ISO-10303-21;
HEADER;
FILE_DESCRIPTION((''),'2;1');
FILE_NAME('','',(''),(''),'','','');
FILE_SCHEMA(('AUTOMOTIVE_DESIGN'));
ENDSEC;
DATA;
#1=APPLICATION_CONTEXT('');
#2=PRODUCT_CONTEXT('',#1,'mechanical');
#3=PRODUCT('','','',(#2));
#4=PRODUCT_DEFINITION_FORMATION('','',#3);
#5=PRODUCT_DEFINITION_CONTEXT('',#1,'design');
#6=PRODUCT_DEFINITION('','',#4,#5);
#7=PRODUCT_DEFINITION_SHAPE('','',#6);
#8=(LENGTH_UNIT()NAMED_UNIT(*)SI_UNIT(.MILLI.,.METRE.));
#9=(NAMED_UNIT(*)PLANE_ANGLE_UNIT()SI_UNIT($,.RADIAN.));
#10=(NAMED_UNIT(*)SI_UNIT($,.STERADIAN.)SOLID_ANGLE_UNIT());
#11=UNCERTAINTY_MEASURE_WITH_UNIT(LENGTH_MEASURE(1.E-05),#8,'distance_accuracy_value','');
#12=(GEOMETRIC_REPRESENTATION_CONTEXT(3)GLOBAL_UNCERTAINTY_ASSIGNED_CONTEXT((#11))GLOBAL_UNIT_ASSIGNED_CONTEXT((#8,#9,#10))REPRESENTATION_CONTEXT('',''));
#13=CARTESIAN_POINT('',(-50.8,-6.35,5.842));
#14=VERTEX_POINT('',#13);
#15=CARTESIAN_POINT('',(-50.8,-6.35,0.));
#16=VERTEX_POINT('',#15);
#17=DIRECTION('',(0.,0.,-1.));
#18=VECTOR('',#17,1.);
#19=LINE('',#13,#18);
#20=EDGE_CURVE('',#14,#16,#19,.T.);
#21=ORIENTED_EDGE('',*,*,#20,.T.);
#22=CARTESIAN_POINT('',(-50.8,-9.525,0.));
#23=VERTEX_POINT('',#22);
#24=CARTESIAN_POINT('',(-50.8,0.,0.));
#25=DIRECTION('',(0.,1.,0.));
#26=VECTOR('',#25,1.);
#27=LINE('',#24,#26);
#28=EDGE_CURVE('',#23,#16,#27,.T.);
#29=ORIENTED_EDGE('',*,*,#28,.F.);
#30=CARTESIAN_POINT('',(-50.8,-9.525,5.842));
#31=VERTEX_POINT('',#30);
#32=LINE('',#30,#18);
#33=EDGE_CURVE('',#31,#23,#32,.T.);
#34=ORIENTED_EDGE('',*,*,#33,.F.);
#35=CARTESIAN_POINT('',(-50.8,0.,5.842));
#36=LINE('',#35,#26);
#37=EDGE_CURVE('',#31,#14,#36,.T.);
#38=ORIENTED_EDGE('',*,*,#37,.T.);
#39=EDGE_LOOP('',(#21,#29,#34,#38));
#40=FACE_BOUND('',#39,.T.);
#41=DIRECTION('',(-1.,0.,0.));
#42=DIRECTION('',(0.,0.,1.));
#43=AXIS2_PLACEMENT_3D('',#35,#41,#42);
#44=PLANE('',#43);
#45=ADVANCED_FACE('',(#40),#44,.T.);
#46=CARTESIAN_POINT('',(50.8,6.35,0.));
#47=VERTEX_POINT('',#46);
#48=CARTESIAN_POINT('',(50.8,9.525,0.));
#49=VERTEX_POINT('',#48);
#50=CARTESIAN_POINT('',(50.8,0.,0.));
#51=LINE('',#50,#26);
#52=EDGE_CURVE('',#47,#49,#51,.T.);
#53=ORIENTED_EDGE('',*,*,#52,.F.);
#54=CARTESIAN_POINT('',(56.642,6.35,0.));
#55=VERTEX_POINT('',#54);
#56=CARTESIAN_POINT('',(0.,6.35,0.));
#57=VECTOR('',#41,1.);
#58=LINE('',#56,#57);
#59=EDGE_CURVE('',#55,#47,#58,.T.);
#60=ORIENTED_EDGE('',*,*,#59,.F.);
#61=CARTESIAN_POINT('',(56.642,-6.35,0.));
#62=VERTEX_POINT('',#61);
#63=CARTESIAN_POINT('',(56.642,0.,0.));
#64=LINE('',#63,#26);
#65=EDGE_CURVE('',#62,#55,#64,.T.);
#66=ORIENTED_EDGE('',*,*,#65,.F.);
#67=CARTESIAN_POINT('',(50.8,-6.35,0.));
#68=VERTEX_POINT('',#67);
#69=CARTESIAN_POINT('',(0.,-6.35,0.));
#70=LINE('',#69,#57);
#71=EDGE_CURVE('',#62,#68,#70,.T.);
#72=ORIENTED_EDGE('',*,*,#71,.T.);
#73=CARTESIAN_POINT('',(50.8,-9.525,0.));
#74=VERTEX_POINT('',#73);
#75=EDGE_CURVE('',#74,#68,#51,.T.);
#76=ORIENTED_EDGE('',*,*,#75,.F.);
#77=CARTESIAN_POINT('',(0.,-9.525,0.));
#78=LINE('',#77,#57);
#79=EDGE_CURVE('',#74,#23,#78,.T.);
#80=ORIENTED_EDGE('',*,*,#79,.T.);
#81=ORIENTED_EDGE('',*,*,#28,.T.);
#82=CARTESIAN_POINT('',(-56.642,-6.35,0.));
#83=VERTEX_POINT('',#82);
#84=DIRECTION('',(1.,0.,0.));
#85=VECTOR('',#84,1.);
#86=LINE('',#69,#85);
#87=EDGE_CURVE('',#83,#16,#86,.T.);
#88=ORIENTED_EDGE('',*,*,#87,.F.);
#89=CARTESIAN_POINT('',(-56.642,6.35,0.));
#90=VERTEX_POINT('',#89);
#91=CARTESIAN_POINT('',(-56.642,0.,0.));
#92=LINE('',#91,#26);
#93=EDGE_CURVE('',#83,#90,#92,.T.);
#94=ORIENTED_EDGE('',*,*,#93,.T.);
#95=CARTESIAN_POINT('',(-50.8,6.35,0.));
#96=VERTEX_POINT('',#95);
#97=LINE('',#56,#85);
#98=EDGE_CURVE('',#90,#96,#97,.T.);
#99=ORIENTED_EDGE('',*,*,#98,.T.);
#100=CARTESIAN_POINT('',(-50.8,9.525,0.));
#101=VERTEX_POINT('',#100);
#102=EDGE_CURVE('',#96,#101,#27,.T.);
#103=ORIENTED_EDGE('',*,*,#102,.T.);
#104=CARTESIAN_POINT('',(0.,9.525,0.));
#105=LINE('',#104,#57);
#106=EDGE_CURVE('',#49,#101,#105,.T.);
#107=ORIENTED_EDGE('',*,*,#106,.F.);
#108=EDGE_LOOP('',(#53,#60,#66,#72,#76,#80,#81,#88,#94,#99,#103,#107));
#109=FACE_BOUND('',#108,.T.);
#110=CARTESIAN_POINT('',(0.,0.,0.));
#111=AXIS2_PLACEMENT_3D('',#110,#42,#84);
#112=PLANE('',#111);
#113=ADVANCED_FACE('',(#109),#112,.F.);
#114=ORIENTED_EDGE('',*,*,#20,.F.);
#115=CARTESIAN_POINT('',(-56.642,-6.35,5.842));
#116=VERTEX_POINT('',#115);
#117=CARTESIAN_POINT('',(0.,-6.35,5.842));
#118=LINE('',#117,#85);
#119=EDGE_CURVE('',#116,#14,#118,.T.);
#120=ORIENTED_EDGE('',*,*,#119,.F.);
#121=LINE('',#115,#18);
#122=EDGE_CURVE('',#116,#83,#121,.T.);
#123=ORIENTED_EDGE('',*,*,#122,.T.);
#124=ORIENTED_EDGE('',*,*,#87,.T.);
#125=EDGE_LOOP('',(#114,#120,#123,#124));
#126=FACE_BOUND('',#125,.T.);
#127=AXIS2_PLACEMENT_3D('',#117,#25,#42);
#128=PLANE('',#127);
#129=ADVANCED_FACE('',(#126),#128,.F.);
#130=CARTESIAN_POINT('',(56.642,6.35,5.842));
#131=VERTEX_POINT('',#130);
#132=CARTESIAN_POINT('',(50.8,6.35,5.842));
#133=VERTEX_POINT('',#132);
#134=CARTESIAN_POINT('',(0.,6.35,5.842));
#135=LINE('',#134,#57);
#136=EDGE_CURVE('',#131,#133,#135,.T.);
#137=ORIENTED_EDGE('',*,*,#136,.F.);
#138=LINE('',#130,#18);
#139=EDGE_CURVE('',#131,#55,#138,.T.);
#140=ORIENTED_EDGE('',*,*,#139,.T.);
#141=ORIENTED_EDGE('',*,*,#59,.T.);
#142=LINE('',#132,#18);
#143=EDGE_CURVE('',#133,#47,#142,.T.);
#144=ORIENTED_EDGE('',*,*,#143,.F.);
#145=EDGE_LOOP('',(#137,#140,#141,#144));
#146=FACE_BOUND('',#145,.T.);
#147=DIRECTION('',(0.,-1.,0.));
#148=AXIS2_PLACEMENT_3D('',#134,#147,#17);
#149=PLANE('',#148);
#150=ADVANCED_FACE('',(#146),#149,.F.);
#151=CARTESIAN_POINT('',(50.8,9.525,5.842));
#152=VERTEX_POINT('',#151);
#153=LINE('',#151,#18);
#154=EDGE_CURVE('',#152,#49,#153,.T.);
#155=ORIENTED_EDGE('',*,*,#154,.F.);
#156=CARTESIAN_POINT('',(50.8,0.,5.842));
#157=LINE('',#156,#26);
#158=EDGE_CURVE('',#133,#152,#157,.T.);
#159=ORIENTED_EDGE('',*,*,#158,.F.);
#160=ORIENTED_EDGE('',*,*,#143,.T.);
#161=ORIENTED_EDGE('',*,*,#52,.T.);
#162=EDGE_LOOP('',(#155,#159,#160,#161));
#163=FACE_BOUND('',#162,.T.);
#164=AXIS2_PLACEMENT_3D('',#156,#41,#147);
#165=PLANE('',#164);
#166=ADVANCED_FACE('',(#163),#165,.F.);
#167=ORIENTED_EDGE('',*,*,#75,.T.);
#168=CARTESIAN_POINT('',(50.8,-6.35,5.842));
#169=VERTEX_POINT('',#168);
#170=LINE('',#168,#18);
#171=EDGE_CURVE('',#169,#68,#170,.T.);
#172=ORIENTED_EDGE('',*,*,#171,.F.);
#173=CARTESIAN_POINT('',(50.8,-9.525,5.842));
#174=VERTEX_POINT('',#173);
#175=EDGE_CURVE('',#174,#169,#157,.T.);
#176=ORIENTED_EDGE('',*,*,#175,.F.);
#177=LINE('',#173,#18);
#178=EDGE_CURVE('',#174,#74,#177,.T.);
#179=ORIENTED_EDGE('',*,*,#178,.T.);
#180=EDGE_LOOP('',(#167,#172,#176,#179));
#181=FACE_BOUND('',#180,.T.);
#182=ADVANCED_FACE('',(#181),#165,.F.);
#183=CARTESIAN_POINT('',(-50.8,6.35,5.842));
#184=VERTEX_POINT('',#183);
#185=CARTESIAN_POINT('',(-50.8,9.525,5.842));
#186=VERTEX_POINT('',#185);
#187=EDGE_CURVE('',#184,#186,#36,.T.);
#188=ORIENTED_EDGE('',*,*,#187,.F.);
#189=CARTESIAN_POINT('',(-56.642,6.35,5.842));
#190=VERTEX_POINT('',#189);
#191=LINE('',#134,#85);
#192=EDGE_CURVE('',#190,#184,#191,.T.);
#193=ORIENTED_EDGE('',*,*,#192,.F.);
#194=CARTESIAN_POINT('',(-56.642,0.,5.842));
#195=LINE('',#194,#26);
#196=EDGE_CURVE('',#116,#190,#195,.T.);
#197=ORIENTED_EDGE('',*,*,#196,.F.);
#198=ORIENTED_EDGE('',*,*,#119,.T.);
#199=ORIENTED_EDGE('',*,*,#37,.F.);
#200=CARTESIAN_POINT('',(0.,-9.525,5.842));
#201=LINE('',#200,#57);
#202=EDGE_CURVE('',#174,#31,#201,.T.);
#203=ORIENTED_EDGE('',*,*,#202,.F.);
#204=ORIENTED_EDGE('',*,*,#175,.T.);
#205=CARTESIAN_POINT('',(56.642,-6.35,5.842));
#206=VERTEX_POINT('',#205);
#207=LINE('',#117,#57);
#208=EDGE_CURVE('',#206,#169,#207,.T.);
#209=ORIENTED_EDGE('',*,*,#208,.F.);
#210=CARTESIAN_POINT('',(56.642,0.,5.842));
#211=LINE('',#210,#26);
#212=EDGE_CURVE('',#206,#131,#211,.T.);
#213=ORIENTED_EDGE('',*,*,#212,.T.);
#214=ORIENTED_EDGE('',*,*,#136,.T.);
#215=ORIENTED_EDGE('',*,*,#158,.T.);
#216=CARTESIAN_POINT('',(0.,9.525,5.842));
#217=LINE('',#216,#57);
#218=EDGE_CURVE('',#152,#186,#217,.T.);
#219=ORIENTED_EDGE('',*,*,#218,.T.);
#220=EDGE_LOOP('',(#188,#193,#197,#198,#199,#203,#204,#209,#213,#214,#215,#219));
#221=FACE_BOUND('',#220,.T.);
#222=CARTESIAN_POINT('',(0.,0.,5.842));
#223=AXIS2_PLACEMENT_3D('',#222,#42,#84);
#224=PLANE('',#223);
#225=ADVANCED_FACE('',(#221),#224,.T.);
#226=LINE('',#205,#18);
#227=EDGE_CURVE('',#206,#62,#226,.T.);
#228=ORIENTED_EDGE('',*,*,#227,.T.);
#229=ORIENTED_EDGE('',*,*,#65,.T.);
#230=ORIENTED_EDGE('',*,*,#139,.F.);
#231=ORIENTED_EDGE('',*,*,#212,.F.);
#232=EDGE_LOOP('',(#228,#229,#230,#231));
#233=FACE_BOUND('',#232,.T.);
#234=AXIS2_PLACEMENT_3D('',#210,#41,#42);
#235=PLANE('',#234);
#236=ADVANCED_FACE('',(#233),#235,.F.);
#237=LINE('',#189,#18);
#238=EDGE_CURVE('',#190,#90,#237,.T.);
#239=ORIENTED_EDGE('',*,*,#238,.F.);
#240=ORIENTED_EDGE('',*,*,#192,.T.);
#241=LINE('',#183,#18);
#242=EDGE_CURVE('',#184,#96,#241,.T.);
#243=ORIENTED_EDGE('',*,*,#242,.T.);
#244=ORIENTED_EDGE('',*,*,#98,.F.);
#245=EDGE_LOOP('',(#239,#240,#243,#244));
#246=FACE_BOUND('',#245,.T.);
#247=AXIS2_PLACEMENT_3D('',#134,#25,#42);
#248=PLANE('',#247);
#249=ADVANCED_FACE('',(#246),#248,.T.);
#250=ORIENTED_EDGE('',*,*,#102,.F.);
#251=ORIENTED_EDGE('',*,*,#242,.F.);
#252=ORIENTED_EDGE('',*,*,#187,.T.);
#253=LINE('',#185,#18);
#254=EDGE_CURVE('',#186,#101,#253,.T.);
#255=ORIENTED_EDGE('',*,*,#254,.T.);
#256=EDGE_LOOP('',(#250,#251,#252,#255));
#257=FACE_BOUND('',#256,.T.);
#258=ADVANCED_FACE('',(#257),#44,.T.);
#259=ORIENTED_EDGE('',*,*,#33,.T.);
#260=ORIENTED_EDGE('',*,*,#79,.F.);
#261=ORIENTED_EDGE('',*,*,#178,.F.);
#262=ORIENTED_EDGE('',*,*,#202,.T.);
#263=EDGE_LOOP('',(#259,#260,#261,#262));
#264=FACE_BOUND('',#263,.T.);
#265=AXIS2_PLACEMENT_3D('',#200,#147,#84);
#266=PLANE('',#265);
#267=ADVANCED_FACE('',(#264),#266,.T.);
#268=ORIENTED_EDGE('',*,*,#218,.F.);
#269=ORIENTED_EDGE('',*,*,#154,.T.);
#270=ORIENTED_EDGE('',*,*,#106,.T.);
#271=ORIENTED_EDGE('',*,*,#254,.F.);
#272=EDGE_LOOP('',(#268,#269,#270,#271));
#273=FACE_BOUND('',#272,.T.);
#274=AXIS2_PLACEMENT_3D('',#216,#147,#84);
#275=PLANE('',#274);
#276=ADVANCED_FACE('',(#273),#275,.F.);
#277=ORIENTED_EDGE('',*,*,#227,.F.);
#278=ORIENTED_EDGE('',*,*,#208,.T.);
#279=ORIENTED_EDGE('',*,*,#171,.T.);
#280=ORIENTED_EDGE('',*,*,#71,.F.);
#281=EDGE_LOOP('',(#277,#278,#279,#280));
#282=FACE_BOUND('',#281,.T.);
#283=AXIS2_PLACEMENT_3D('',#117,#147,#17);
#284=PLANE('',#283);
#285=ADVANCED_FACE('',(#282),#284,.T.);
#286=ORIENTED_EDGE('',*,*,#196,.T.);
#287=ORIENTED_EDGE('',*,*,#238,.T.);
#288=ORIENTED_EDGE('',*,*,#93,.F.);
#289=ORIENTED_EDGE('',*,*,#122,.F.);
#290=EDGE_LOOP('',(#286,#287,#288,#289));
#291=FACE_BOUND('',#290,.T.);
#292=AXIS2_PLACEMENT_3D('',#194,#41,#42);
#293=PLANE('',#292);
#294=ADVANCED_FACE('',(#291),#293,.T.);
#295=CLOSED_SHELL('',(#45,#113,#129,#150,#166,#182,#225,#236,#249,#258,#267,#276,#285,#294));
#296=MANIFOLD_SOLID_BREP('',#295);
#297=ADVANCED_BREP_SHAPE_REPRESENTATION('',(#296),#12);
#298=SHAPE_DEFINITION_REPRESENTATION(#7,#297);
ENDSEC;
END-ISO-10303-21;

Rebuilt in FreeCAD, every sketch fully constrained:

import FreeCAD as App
import Part
import Sketcher
from FreeCAD import Vector
Q = App.Units.Quantity


def add_polygon(sketch, points):
    """Adds a closed chain of lines whose ends are joined by coincident constraints."""
    first, n = sketch.GeometryCount, len(points)
    for a, b in zip(points, points[1:] + points[:1]):
        sketch.addGeometry(Part.LineSegment(App.Vector(*a, 0), App.Vector(*b, 0)), False)
    for i in range(n):
        sketch.addConstraint(Sketcher.Constraint("Coincident", first + i, 2, first + (i + 1) % n, 1))

doc = App.newDocument("Part")
body = doc.addObject("PartDesign::Body", "Body")

# Sketch on XY plane
sketch1 = body.newObject("Sketcher::SketchObject", "Sketch")
sketch1.AttachmentSupport = (doc.getObject("XY_Plane"), [""])
sketch1.MapMode = "FlatFace"
add_polygon(sketch1, [(56.642, 6.35), (50.8, 6.35), (50.8, 9.525), (-50.8, 9.525), (-50.8, 6.35), (-56.642, 6.35), (-56.642, -6.35), (-50.8, -6.35), (-50.8, -9.525), (50.8, -9.525), (50.8, -6.35), (56.642, -6.35)])  # lines 0-11
sketch1.addConstraint([
    Sketcher.Constraint("Horizontal", 0),
    Sketcher.Constraint("Vertical", 1),
    Sketcher.Constraint("Horizontal", 2),
    Sketcher.Constraint("Vertical", 3),
    Sketcher.Constraint("Horizontal", 4),
    Sketcher.Constraint("Vertical", 5),
    Sketcher.Constraint("Horizontal", 6),
    Sketcher.Constraint("Vertical", 7),
    Sketcher.Constraint("Horizontal", 8),
    Sketcher.Constraint("Vertical", 9),
    Sketcher.Constraint("Horizontal", 10),
    Sketcher.Constraint("Vertical", 11),
    Sketcher.Constraint("Symmetric", 0, 2, 6, 2, -1, 1),
    Sketcher.Constraint("Symmetric", 2, 2, 8, 2, -1, 1),
    Sketcher.Constraint("Symmetric", 4, 2, 10, 2, -1, 1),
    Sketcher.Constraint("Symmetric", 0, 2, 3, 2, -2),
    Sketcher.Constraint("DistanceX", 2, 2, 2, 1, Q("4 in")),
    Sketcher.Constraint("DistanceY", 5, 2, 5, 1, Q("0.5 in")),
    Sketcher.Constraint("DistanceX", 0, 2, 0, 1, Q("0.23 in")),
    Sketcher.Constraint("DistanceY", 1, 1, 1, 2, Q("0.125 in")),
])
pad1 = body.newObject("PartDesign::Pad", "Pad")
pad1.Profile = sketch1
pad1.Length = Q("0.23 in")

doc.recompute()
